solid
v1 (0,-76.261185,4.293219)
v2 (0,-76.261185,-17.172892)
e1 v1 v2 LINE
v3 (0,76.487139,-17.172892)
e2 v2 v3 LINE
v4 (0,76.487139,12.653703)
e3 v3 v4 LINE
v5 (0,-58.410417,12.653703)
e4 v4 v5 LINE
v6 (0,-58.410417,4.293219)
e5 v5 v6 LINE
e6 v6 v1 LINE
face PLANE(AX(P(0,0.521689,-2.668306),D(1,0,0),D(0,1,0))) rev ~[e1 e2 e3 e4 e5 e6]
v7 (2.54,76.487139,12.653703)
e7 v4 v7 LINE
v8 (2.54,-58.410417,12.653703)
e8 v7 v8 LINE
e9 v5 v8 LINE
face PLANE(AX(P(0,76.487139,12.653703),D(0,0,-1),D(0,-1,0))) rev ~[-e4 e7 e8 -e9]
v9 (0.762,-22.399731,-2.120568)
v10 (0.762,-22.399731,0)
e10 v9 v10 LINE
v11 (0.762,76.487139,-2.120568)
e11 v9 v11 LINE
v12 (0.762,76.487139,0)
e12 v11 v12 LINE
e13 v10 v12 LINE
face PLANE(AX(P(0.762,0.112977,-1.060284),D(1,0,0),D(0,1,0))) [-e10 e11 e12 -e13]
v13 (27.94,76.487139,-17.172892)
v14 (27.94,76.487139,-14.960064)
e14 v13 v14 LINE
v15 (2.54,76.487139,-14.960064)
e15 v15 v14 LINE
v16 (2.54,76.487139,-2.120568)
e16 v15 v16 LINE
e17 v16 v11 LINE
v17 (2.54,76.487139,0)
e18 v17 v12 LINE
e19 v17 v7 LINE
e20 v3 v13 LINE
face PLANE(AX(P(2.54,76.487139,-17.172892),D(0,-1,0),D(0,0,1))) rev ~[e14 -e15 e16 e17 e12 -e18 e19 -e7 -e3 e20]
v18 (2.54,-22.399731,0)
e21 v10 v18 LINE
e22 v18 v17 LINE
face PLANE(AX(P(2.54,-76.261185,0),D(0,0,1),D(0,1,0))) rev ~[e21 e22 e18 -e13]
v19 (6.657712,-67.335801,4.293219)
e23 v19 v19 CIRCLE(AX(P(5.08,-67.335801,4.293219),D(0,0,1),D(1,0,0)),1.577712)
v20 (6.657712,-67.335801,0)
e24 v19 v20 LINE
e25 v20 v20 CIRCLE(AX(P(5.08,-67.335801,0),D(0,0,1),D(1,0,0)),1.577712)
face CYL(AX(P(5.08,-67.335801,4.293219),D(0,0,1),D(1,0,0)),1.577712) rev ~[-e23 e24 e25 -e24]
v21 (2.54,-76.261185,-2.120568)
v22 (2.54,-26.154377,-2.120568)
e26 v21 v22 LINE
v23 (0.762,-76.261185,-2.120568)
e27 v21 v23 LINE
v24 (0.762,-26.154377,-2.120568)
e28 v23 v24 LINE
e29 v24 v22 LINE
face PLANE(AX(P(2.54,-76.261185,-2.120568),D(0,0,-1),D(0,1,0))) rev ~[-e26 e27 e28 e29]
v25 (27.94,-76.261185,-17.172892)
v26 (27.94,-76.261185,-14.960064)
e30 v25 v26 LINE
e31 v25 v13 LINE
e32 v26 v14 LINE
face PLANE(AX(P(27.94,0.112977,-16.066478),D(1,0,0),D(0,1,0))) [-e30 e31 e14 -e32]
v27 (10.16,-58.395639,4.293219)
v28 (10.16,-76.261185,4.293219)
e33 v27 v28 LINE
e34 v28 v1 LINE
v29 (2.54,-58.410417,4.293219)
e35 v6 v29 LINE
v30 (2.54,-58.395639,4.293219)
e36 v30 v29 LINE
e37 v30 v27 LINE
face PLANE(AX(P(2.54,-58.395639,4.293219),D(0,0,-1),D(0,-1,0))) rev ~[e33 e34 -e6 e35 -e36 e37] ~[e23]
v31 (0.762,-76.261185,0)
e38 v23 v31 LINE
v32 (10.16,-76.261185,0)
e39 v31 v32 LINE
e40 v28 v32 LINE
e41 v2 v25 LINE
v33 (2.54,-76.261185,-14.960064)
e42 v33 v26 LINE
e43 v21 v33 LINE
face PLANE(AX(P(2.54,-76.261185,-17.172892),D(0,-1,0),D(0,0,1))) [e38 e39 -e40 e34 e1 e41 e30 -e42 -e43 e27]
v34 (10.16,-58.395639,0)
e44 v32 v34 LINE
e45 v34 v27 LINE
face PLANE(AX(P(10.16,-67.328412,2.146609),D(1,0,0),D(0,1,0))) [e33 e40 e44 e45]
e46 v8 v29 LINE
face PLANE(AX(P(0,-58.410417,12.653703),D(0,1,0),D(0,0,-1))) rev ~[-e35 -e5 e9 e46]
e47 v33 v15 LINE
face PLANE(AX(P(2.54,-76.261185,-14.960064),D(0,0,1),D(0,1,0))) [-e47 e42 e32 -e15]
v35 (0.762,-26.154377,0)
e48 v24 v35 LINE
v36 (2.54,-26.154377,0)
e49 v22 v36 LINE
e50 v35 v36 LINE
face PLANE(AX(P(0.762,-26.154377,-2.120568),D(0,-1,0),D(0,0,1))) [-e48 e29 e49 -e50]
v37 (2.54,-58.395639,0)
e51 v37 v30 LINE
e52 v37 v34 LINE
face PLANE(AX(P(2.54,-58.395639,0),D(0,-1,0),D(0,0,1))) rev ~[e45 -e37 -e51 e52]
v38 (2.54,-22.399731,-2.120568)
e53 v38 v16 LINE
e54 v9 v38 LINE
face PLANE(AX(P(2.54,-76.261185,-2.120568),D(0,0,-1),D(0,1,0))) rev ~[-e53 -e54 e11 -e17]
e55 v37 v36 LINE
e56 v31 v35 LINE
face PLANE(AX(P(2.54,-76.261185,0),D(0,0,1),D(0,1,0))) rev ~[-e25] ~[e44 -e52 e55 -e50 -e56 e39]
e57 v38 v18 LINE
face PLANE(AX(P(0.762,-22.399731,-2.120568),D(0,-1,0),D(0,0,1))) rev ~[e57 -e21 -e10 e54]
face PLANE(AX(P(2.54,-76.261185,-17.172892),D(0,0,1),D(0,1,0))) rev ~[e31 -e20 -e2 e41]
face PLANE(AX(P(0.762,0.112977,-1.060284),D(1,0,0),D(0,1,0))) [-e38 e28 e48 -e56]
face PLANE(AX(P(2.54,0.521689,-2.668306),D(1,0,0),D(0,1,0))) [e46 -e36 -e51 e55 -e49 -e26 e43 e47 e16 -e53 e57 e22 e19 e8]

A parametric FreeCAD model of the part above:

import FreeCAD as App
import Part
import Sketcher
Q = App.Units.Quantity


def add_polygon(sketch, points):
    """Adds a closed chain of lines whose ends are joined by coincident constraints."""
    first, n = sketch.GeometryCount, len(points)
    for a, b in zip(points, points[1:] + points[:1]):
        sketch.addGeometry(Part.LineSegment(App.Vector(*a, 0), App.Vector(*b, 0)), False)
    for i in range(n):
        sketch.addConstraint(Sketcher.Constraint("Coincident", first + i, 2, first + (i + 1) % n, 1))

doc = App.newDocument("Part")
body = doc.addObject("PartDesign::Body", "Body")

sketch1 = body.newObject("Sketcher::SketchObject", "Sketch")
sketch1.AttachmentSupport = (doc.getObject("YZ_Plane"), [""])
sketch1.MapMode = "FlatFace"
add_polygon(sketch1, [(76, 13), (-58, 13), (-58, 4), (-76, 4), (-76, -17), (76, -17)])
sketch1.addConstraint(Sketcher.Constraint("Horizontal", 0))
sketch1.addConstraint(Sketcher.Constraint("Vertical", 1))
sketch1.addConstraint(Sketcher.Constraint("Horizontal", 2))
sketch1.addConstraint(Sketcher.Constraint("Vertical", 3))
sketch1.addConstraint(Sketcher.Constraint("Horizontal", 4))
sketch1.addConstraint(Sketcher.Constraint("Vertical", 5))
sketch1.addConstraint(Sketcher.Constraint("DistanceY", 3, 2, 3, 1, 21.466111))
sketch1.addConstraint(Sketcher.Constraint("DistanceX", 0, 2, 0, 1, 134.897556))
sketch1.addConstraint(Sketcher.Constraint("DistanceX", 2, 2, 2, 1, 17.850768))
sketch1.addConstraint(Sketcher.Constraint("DistanceY", 1, 2, 1, 1, 8.360484))
sketch1.addConstraint(Sketcher.Constraint("DistanceY", -1, 1, 1, 2, 4.293219))
sketch1.addConstraint(Sketcher.Constraint("DistanceX", -1, 1, 4, 2, 76.487139))
pad1 = body.newObject("PartDesign::Pad", "Pad")
pad1.Profile = sketch1
pad1.Length = Q("0.1 in")

sketch2 = body.newObject("Sketcher::SketchObject", "Sketch001")
sketch2.AttachmentSupport = (doc.getObject("YZ_Plane"), [""])
sketch2.MapMode = "FlatFace"
sketch2.AttachmentOffset = App.Placement(App.Vector(0, 0, 0.1 * 25.4), App.Rotation())
add_polygon(sketch2, [(-76.3, 4.3), (-76.3, 0), (-58.4, 0), (-58.4, 4.3)])
sketch2.addConstraint(Sketcher.Constraint("Vertical", 0))
sketch2.addConstraint(Sketcher.Constraint("Horizontal", 1))
sketch2.addConstraint(Sketcher.Constraint("Vertical", 2))
sketch2.addConstraint(Sketcher.Constraint("Horizontal", 3))
sketch2.addConstraint(Sketcher.Constraint("PointOnObject", 0, 2, -1))
sketch2.addConstraint(Sketcher.Constraint("DistanceY", 0, 2, 0, 1, 4.293219))
sketch2.addConstraint(Sketcher.Constraint("DistanceX", 1, 1, 1, 2, 17.865546))
sketch2.addConstraint(Sketcher.Constraint("DistanceX", 1, 2, -1, 1, 58.395639))
pad2 = body.newObject("PartDesign::Pad", "Pad001")
pad2.Profile = sketch2
pad2.Length = Q("0.3 in")

sketch3 = body.newObject("Sketcher::SketchObject", "Sketch002")
sketch3.AttachmentSupport = (doc.getObject("YZ_Plane"), [""])
sketch3.MapMode = "FlatFace"
sketch3.AttachmentOffset = App.Placement(App.Vector(0, 0, 0.1 * 25.4), App.Rotation())
add_polygon(sketch3, [(-76.3, -15), (-76.3, -17.2), (76.5, -17.2), (76.5, -15)])
sketch3.addConstraint(Sketcher.Constraint("Vertical", 0))
sketch3.addConstraint(Sketcher.Constraint("Horizontal", 1))
sketch3.addConstraint(Sketcher.Constraint("Vertical", 2))
sketch3.addConstraint(Sketcher.Constraint("Horizontal", 3))
sketch3.addConstraint(Sketcher.Constraint("DistanceY", 0, 2, 0, 1, 2.212828))
sketch3.addConstraint(Sketcher.Constraint("DistanceX", 1, 1, 1, 2, 152.748324))
sketch3.addConstraint(Sketcher.Constraint("DistanceX", -1, 1, 1, 2, 76.487139))
sketch3.addConstraint(Sketcher.Constraint("DistanceY", 0, 2, -1, 1, 17.172892))
pad3 = body.newObject("PartDesign::Pad", "Pad002")
pad3.Profile = sketch3
pad3.Length = Q("1 in")

sketch4 = body.newObject("Sketcher::SketchObject", "Sketch003")
sketch4.AttachmentSupport = (doc.getObject("XY_Plane"), [""])
sketch4.MapMode = "FlatFace"
sketch4.AttachmentOffset = App.Placement(App.Vector(0, 0, 4.293219), App.Rotation())
sketch4.addGeometry(Part.Circle(App.Vector(5.1, -67.3, 0), App.Vector(0, 0, 1), 1.6), False)
sketch4.addConstraint(Sketcher.Constraint("DistanceX", -1, 1, 0, 3, Q("0.2 in")))
sketch4.addConstraint(Sketcher.Constraint("Diameter", 0, 3.155424))
sketch4.addConstraint(Sketcher.Constraint("DistanceY", 0, 3, -1, 1, 67.335801))
pocket1 = body.newObject("PartDesign::Pocket", "Pocket")
pocket1.Profile = sketch4
pocket1.Length = 4.293219

sketch5 = body.newObject("Sketcher::SketchObject", "Sketch004")
sketch5.AttachmentSupport = (doc.getObject("YZ_Plane"), [""])
sketch5.MapMode = "FlatFace"
sketch5.AttachmentOffset = App.Placement(App.Vector(0, 0, 0.1 * 25.4), App.Rotation())
add_polygon(sketch5, [(-76.3, 0), (-76.3, -2.1), (76.5, -2.1), (76.5, 0)])
sketch5.addConstraint(Sketcher.Constraint("Vertical", 0))
sketch5.addConstraint(Sketcher.Constraint("Horizontal", 1))
sketch5.addConstraint(Sketcher.Constraint("Vertical", 2))
sketch5.addConstraint(Sketcher.Constraint("Horizontal", 3))
sketch5.addConstraint(Sketcher.Constraint("PointOnObject", 2, 2, -1))
sketch5.addConstraint(Sketcher.Constraint("DistanceY", 0, 2, 0, 1, 2.120568))
sketch5.addConstraint(Sketcher.Constraint("DistanceX", 1, 1, 1, 2, 152.748324))
sketch5.addConstraint(Sketcher.Constraint("DistanceX", -1, 1, 1, 2, 76.487139))
pocket2 = body.newObject("PartDesign::Pocket", "Pocket001")
pocket2.Profile = sketch5
pocket2.Length = Q("0.07 in")

sketch6 = body.newObject("Sketcher::SketchObject", "Sketch005")
sketch6.AttachmentSupport = (doc.getObject("YZ_Plane"), [""])
sketch6.MapMode = "FlatFace"
sketch6.AttachmentOffset = App.Placement(App.Vector(0, 0, 0.03 * 25.4), App.Rotation())
add_polygon(sketch6, [(-26.2, 0), (-26.2, -2.1), (-22.4, -2.1), (-22.4, 0)])
sketch6.addConstraint(Sketcher.Constraint("Vertical", 0))
sketch6.addConstraint(Sketcher.Constraint("Horizontal", 1))
sketch6.addConstraint(Sketcher.Constraint("Vertical", 2))
sketch6.addConstraint(Sketcher.Constraint("Horizontal", 3))
sketch6.addConstraint(Sketcher.Constraint("PointOnObject", 2, 2, -1))
sketch6.addConstraint(Sketcher.Constraint("DistanceX", 0, 2, -1, 1, Q("1.0296999 in")))
sketch6.addConstraint(Sketcher.Constraint("DistanceY", 0, 2, 0, 1, 2.120568))
sketch6.addConstraint(Sketcher.Constraint("DistanceX", 1, 1, 1, 2, 3.754646))
pad4 = body.newObject("PartDesign::Pad", "Pad003")
pad4.Profile = sketch6
pad4.Length = Q("0.07 in")

doc.recompute()
